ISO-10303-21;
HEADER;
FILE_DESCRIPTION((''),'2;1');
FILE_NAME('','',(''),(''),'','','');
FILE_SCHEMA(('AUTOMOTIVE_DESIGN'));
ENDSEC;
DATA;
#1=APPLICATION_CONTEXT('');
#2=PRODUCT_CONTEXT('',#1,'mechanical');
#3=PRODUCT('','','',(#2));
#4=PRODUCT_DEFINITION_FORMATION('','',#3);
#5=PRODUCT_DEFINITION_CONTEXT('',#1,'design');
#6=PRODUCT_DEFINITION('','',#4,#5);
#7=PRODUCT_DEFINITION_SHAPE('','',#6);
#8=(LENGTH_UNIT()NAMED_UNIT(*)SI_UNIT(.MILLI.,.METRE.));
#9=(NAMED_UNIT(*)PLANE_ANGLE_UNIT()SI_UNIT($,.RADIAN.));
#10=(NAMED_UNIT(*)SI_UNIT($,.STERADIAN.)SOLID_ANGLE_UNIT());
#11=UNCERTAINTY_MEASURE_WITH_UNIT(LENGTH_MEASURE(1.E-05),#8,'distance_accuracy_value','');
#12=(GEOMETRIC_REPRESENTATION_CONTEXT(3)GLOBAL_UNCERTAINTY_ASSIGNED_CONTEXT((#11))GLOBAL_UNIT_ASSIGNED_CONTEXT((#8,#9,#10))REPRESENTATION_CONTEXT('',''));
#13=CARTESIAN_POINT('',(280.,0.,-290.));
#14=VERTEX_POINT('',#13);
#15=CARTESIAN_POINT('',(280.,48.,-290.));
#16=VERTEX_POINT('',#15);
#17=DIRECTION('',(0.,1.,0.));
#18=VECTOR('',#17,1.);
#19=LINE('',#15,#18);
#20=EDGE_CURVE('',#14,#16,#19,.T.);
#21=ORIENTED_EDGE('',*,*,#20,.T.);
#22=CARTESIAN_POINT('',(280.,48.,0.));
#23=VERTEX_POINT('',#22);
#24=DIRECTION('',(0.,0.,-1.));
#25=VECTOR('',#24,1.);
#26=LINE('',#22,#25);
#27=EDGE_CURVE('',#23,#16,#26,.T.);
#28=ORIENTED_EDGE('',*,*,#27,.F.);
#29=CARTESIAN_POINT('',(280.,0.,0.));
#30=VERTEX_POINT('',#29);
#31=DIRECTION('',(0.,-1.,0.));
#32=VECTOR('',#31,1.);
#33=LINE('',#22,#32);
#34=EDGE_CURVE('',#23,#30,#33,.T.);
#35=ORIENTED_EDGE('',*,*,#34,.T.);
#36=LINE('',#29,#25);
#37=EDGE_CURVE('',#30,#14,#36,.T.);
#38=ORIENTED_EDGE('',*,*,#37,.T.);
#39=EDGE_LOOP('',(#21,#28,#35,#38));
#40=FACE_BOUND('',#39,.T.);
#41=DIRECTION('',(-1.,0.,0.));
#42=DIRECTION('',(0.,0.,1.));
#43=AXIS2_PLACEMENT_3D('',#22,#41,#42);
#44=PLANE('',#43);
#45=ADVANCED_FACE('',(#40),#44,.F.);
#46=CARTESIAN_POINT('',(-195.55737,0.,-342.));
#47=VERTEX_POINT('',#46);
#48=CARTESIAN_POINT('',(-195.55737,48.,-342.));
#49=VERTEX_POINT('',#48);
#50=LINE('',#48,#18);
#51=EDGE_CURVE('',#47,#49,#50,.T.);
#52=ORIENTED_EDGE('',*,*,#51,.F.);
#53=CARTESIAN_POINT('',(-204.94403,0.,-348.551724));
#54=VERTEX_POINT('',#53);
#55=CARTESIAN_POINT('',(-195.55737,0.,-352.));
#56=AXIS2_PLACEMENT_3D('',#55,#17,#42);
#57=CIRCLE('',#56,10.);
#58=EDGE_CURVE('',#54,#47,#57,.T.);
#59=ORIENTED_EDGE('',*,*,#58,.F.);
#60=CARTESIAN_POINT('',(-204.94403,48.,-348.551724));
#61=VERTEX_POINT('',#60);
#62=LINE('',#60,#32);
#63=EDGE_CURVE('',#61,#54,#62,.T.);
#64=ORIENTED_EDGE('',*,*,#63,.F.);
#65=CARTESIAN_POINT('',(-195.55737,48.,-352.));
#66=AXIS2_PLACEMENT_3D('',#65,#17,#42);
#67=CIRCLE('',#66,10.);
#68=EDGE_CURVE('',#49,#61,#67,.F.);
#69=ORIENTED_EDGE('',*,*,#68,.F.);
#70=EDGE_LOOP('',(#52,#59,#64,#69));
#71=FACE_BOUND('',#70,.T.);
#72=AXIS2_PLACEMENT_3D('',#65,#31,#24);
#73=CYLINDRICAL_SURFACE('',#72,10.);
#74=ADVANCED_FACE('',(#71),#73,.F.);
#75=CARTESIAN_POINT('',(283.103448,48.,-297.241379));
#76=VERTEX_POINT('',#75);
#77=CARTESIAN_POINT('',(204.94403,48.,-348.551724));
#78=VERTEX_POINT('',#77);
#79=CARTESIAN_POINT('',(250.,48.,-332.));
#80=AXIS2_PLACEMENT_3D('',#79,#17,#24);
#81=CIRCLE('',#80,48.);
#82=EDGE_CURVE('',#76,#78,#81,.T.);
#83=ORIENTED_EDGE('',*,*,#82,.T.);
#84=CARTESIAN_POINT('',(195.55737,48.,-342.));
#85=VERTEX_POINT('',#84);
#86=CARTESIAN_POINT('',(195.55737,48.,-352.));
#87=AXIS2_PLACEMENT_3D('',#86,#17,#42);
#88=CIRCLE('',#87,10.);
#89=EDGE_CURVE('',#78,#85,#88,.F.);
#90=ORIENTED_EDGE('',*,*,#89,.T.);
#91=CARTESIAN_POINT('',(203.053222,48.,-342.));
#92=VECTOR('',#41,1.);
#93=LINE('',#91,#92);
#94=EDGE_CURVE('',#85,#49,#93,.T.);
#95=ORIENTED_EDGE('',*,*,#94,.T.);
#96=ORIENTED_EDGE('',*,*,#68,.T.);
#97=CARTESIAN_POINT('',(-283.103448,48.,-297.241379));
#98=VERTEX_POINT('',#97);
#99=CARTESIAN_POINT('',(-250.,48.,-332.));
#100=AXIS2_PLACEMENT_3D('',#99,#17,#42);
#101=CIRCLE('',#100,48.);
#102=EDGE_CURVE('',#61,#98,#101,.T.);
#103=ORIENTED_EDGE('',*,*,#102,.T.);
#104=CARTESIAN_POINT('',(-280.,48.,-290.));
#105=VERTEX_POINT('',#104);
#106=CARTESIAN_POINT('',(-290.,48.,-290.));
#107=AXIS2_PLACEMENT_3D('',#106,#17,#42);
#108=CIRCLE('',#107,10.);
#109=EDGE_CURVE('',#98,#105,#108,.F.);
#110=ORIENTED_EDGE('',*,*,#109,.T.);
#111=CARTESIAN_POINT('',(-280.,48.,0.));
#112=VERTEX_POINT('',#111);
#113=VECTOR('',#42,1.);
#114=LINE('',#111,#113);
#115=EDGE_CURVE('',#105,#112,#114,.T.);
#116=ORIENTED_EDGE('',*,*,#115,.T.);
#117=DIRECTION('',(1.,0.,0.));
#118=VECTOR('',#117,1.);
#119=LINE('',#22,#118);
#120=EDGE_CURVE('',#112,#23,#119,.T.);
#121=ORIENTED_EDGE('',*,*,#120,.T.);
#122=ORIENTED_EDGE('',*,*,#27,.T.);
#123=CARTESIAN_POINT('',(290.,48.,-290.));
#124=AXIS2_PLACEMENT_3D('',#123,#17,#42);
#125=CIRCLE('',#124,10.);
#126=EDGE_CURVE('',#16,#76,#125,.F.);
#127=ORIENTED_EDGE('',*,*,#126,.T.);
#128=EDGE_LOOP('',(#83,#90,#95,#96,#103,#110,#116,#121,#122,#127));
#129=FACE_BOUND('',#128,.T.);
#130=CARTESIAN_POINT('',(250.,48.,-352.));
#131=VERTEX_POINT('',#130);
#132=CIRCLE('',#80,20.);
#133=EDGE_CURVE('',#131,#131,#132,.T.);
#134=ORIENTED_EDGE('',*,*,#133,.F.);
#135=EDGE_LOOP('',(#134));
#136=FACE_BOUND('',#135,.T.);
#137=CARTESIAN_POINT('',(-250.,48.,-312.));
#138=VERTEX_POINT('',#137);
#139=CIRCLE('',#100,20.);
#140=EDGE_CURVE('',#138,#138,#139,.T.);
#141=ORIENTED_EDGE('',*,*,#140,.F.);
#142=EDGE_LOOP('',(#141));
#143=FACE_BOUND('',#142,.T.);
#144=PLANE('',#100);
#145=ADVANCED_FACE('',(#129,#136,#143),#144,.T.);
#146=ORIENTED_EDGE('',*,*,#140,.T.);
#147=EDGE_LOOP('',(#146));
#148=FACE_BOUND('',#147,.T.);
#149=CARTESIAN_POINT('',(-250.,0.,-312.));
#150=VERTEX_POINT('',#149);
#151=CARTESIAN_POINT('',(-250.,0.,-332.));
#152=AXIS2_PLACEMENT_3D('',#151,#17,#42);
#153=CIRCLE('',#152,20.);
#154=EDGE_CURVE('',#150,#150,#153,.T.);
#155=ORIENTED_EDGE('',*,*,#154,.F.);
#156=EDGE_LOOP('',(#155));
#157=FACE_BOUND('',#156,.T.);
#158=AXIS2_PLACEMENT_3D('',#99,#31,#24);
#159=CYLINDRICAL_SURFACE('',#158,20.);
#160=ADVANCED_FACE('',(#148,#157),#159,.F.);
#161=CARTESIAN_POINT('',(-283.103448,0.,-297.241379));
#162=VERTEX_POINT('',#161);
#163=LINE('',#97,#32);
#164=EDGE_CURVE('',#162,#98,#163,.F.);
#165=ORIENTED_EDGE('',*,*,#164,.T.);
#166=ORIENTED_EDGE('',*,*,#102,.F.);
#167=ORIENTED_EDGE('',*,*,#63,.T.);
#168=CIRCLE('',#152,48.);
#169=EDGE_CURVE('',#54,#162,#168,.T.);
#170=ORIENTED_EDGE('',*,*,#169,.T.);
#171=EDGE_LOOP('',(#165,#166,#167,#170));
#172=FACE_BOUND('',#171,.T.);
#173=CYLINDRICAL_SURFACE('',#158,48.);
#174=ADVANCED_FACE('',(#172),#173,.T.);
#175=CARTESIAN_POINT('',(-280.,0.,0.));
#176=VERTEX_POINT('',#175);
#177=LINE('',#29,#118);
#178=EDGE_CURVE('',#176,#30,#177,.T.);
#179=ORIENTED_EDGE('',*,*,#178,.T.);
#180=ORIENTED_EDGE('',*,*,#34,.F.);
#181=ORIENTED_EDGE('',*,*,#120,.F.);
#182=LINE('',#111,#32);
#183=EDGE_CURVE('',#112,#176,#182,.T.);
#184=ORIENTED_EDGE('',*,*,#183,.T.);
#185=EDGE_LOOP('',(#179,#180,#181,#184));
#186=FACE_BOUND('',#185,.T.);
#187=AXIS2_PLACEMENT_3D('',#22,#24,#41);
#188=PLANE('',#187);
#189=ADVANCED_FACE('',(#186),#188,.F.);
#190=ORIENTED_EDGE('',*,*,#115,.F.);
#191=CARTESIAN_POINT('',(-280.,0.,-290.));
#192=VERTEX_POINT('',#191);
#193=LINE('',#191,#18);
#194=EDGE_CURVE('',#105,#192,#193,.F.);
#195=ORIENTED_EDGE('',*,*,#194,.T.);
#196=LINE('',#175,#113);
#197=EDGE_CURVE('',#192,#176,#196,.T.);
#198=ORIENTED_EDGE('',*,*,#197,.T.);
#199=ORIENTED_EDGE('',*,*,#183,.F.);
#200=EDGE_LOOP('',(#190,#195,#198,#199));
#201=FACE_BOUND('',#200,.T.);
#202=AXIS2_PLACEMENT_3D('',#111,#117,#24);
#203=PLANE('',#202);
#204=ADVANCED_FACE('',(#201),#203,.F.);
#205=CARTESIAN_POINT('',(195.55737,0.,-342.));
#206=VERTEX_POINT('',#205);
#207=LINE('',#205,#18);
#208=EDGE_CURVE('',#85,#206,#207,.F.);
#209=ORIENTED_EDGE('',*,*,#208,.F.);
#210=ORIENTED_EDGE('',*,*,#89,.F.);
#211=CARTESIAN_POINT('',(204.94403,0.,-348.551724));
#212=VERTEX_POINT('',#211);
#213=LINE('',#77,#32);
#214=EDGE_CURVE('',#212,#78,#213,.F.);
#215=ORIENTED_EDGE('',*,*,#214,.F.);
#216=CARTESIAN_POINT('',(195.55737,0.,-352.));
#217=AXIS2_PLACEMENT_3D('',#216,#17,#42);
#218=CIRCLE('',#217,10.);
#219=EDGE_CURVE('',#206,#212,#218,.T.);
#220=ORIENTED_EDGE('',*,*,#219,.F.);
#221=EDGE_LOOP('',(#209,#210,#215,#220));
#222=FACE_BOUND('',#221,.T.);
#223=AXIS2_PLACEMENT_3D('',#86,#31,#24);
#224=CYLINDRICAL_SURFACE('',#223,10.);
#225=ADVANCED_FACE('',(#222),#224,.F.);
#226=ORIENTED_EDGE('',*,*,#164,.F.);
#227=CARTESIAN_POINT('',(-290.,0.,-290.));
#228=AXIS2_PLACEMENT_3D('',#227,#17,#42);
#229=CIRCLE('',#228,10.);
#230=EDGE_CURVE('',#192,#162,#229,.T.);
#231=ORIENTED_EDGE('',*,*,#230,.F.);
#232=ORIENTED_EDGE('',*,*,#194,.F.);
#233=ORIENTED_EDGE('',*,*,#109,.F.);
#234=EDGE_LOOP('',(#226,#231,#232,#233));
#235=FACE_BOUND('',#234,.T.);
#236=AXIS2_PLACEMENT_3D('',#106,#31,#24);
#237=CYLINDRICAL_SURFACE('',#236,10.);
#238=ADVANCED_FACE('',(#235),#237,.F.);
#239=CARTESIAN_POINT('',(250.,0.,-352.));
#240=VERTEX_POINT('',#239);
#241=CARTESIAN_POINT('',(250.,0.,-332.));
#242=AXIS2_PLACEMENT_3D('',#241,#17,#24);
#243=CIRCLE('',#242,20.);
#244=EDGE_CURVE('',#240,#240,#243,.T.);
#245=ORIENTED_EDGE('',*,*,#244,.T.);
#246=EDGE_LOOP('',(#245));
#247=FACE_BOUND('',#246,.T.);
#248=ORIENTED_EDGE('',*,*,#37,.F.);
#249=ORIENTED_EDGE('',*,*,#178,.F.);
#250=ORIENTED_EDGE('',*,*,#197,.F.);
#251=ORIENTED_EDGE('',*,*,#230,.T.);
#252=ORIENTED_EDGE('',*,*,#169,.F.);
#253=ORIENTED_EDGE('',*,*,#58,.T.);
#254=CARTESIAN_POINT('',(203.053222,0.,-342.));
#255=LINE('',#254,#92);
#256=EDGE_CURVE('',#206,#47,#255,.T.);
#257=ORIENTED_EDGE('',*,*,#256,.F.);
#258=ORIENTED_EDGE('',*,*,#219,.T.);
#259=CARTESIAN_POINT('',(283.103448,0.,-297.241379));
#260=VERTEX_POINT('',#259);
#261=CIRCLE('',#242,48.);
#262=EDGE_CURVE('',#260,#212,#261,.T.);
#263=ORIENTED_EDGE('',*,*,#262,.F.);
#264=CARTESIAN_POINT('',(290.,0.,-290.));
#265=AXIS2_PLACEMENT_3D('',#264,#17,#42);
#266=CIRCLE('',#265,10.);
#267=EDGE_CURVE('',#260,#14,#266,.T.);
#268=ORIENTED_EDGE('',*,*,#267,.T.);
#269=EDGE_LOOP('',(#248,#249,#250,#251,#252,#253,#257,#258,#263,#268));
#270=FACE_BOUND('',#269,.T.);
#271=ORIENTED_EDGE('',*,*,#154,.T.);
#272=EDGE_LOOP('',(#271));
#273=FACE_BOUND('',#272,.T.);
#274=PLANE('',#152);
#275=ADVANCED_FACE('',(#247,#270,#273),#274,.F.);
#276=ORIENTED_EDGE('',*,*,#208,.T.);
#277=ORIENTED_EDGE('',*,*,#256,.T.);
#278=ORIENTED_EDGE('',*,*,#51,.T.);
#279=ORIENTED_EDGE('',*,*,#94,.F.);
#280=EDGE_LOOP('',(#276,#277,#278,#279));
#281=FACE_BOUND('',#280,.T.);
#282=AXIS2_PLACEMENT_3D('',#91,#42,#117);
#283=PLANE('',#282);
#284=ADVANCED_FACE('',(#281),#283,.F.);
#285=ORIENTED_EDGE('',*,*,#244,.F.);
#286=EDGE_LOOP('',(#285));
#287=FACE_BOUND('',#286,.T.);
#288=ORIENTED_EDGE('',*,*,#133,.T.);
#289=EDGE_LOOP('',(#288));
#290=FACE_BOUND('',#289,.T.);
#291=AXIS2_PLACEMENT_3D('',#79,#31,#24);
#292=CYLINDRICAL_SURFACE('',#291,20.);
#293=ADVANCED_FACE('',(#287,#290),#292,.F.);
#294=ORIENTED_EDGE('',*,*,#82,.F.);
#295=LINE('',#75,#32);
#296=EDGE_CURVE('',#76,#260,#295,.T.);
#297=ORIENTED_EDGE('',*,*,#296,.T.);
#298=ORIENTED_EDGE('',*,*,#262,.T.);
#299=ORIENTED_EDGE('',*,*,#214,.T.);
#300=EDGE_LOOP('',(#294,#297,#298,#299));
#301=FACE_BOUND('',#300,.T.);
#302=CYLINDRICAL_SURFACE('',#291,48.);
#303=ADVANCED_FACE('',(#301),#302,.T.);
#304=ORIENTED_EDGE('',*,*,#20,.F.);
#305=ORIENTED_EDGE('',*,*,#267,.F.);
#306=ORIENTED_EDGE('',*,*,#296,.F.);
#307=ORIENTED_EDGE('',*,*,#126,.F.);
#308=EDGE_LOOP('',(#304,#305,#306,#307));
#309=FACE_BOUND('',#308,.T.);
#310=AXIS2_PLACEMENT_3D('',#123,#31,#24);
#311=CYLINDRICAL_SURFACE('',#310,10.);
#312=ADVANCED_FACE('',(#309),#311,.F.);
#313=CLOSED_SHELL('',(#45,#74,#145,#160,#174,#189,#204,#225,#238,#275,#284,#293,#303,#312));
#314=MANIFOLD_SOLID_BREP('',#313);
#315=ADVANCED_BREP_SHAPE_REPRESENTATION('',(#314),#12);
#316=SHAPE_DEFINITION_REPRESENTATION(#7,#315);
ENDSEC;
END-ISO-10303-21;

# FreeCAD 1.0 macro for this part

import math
import FreeCAD as App
import Part
import Sketcher

V = App.Vector
Q = App.Units.Quantity


def edges_at(feature, points):
    """Names of the edges that pass closest to the given points."""
    edges = feature.Shape.Edges
    near = lambda p: min(range(len(edges)), key=lambda i: edges[i].distToShape(Part.Vertex(*p))[0])
    return sorted({f"Edge{near(p) + 1}" for p in points})

doc = App.newDocument("Part")
body = doc.addObject("PartDesign::Body", "Body")

sketch1 = body.newObject("Sketcher::SketchObject", "Sketch")
sketch1.AttachmentSupport = (doc.getObject("XZ_Plane"), [""])
sketch1.MapMode = "FlatFace"
sketch1.addGeometry(Part.LineSegment(V(-280, 0, 0), V(280, 0, 0)), False)
sketch1.addGeometry(Part.LineSegment(V(280, 0, 0), V(280, -295, 0)), False)
sketch1.addGeometry(Part.ArcOfCircle(Part.Circle(V(250, -332, 0), V(0, 0, 1), 48), math.radians(-168), math.radians(51)), False)
sketch1.addGeometry(Part.LineSegment(V(203, -342, 0), V(-203, -342, 0)), False)
sketch1.addGeometry(Part.ArcOfCircle(Part.Circle(V(-250, -332, 0), V(0, 0, 1), 48), math.radians(129), math.radians(348)), False)
sketch1.addGeometry(Part.LineSegment(V(-280, -295, 0), V(-280, 0, 0)), False)
sketch1.addGeometry(Part.Circle(V(250, -332, 0), V(0, 0, 1), 20), False)
sketch1.addGeometry(Part.Circle(V(-250, -332, 0), V(0, 0, 1), 20), False)
sketch1.addConstraint(Sketcher.Constraint("Coincident", 0, 2, 1, 1))
sketch1.addConstraint(Sketcher.Constraint("Coincident", 1, 2, 2, 2))
sketch1.addConstraint(Sketcher.Constraint("Coincident", 2, 1, 3, 1))
sketch1.addConstraint(Sketcher.Constraint("Coincident", 3, 2, 4, 2))
sketch1.addConstraint(Sketcher.Constraint("Coincident", 4, 1, 5, 1))
sketch1.addConstraint(Sketcher.Constraint("Coincident", 5, 2, 0, 1))
sketch1.addConstraint(Sketcher.Constraint("Horizontal", 0))
sketch1.addConstraint(Sketcher.Constraint("Vertical", 1))
sketch1.addConstraint(Sketcher.Constraint("Horizontal", 3))
sketch1.addConstraint(Sketcher.Constraint("Vertical", 5))
sketch1.addConstraint(Sketcher.Constraint("Coincident", 6, 3, 2, 3))
sketch1.addConstraint(Sketcher.Constraint("Coincident", 7, 3, 4, 3))
sketch1.addConstraint(Sketcher.Constraint("Equal", 2, 4))
sketch1.addConstraint(Sketcher.Constraint("Equal", 6, 7))
sketch1.addConstraint(Sketcher.Constraint("Symmetric", 0, 2, 5, 2, -1, 1))
sketch1.addConstraint(Sketcher.Constraint("Symmetric", 2, 3, 4, 3, -2))
sketch1.addConstraint(Sketcher.Constraint("Diameter", 6, Q("40 mm")))
sketch1.addConstraint(Sketcher.Constraint("Radius", 2, Q("48 mm")))
sketch1.addConstraint(Sketcher.Constraint("DistanceX", 0, 1, 0, 2, Q("560 mm")))
sketch1.addConstraint(Sketcher.Constraint("DistanceX", -1, 1, 2, 3, Q("250 mm")))
sketch1.addConstraint(Sketcher.Constraint("DistanceY", 2, 3, -1, 1, Q("332 mm")))
sketch1.addConstraint(Sketcher.Constraint("DistanceY", 2, 1, -1, 1, Q("342 mm")))
pad1 = body.newObject("PartDesign::Pad", "Pad")
pad1.Profile = sketch1
pad1.Length = 48
pad1.Reversed = True
doc.recompute()

fillet = body.newObject("PartDesign::Fillet", "Fillet")
fillet.Base = (pad1, edges_at(pad1, [
    (-280, 24, -294.53),
    (-203.053, 24, -342),
    (203.053, 24, -342),
    (280, 24, -294.53),
]))
fillet.Radius = 10

doc.recompute()
